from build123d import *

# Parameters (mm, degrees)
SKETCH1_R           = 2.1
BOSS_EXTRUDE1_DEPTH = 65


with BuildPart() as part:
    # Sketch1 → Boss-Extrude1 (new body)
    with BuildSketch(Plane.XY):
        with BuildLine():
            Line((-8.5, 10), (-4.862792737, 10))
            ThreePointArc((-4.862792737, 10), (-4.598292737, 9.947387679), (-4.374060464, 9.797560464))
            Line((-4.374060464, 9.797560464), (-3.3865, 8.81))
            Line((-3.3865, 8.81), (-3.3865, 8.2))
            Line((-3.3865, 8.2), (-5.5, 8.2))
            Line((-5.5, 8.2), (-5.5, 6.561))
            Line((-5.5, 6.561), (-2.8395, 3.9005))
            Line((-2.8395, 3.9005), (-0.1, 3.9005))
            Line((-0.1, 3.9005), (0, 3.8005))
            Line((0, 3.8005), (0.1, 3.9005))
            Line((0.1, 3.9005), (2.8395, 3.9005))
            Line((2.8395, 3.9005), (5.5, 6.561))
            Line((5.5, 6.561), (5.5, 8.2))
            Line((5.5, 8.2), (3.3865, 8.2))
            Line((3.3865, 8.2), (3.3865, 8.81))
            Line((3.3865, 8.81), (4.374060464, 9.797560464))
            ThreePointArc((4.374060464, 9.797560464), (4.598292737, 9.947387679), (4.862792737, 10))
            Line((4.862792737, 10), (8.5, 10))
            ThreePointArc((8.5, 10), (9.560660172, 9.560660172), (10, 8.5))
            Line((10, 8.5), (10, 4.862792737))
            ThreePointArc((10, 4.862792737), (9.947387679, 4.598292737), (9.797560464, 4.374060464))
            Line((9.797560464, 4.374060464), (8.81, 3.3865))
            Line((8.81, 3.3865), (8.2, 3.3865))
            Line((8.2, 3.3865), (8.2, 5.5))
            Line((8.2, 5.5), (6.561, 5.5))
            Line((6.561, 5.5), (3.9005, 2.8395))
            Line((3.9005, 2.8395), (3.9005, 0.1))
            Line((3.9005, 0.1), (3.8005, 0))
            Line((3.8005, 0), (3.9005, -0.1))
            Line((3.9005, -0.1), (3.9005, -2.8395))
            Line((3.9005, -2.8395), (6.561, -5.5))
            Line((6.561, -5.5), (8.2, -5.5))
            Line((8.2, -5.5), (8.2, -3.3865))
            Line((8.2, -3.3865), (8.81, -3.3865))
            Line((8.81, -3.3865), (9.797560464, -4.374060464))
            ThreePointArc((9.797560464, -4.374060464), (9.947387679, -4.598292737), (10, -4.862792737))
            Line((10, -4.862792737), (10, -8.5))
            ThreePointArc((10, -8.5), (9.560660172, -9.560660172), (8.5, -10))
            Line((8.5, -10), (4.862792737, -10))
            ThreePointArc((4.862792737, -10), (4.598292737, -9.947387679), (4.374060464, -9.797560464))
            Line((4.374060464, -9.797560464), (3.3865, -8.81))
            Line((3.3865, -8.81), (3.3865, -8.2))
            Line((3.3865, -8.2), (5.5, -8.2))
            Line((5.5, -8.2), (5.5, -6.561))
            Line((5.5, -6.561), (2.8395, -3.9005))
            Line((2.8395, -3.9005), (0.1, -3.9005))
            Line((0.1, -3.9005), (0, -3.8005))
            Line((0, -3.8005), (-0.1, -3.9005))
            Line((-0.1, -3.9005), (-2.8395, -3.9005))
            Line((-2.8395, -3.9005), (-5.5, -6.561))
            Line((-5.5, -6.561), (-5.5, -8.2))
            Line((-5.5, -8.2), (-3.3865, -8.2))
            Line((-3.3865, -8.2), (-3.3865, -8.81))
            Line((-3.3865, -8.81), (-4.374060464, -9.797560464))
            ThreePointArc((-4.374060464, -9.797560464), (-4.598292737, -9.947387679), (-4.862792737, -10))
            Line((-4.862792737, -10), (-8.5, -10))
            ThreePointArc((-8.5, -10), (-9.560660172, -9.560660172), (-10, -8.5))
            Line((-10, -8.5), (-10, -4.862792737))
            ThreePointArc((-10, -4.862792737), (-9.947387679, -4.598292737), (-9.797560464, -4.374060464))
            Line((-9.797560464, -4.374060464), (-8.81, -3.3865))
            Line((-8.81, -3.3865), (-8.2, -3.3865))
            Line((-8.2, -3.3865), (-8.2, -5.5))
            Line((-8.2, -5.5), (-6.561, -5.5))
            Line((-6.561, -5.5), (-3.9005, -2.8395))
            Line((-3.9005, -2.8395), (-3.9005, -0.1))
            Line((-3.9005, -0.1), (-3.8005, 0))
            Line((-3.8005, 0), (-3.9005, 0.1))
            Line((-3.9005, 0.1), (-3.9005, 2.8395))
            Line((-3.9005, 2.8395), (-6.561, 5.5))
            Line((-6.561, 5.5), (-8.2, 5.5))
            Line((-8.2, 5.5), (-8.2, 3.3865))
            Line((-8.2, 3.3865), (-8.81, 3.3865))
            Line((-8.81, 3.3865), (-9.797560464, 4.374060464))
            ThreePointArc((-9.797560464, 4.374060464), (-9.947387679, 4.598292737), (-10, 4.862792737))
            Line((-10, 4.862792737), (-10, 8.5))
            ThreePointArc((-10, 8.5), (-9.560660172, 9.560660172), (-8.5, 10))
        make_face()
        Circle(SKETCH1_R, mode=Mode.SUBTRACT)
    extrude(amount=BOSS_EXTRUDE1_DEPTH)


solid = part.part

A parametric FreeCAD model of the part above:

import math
import FreeCAD as App
import Part
import Sketcher
Q = App.Units.Quantity

doc = App.newDocument("Part")
body = doc.addObject("PartDesign::Body", "Body")

# Sketch on XY plane
sketch1 = doc.addObject("Sketcher::SketchObject", "Sketch")
body.addObject(sketch1)
sketch1.AttachmentSupport = (doc.XY_Plane, [""])
sketch1.MapMode = "FlatFace"
sketch1.addGeometry([
    Part.LineSegment(App.Vector(-4.862793, 10, 0), App.Vector(-8.5, 10, 0)),  # 0
    Part.ArcOfCircle(Part.Circle(App.Vector(-8.5, 8.5, 0), App.Vector(0, 0, 1), 1.5), math.radians(90), math.radians(180)),  # 1
    Part.LineSegment(App.Vector(-10, 8.5, 0), App.Vector(-10, 4.862793, 0)),  # 2
    Part.ArcOfCircle(Part.Circle(App.Vector(-9.308828, 4.862793, 0), App.Vector(0, 0, 1), 0.691172), math.radians(180), math.radians(225)),  # 3
    Part.LineSegment(App.Vector(-9.79756, 4.37406, 0), App.Vector(-8.81, 3.3865, 0)),  # 4
    Part.LineSegment(App.Vector(-8.81, 3.3865, 0), App.Vector(-8.2, 3.3865, 0)),  # 5
    Part.LineSegment(App.Vector(-8.2, 3.3865, 0), App.Vector(-8.2, 5.5, 0)),  # 6
    Part.LineSegment(App.Vector(-8.2, 5.5, 0), App.Vector(-6.561, 5.5, 0)),  # 7
    Part.LineSegment(App.Vector(-6.561, 5.5, 0), App.Vector(-3.9005, 2.8395, 0)),  # 8
    Part.LineSegment(App.Vector(-3.9005, 2.8395, 0), App.Vector(-3.9005, 0.1, 0)),  # 9
    Part.LineSegment(App.Vector(-3.9005, 0.1, 0), App.Vector(-3.8005, 0, 0)),  # 10
    Part.LineSegment(App.Vector(-3.8005, 0, 0), App.Vector(-3.9005, -0.1, 0)),  # 11
    Part.LineSegment(App.Vector(-3.9005, -0.1, 0), App.Vector(-3.9005, -2.8395, 0)),  # 12
    Part.LineSegment(App.Vector(-3.9005, -2.8395, 0), App.Vector(-6.561, -5.5, 0)),  # 13
    Part.LineSegment(App.Vector(-6.561, -5.5, 0), App.Vector(-8.2, -5.5, 0)),  # 14
    Part.LineSegment(App.Vector(-8.2, -5.5, 0), App.Vector(-8.2, -3.3865, 0)),  # 15
    Part.LineSegment(App.Vector(-8.2, -3.3865, 0), App.Vector(-8.81, -3.3865, 0)),  # 16
    Part.LineSegment(App.Vector(-8.81, -3.3865, 0), App.Vector(-9.79756, -4.37406, 0)),  # 17
    Part.ArcOfCircle(Part.Circle(App.Vector(-9.308828, -4.862793, 0), App.Vector(0, 0, 1), 0.691172), math.radians(135), math.radians(180)),  # 18
    Part.LineSegment(App.Vector(-10, -4.862793, 0), App.Vector(-10, -8.5, 0)),  # 19
    Part.ArcOfCircle(Part.Circle(App.Vector(-8.5, -8.5, 0), App.Vector(0, 0, 1), 1.5), math.radians(180), math.radians(270)),  # 20
    Part.LineSegment(App.Vector(-8.5, -10, 0), App.Vector(-4.862793, -10, 0)),  # 21
    Part.ArcOfCircle(Part.Circle(App.Vector(-4.862793, -9.308828, 0), App.Vector(0, 0, 1), 0.691172), math.radians(-90), math.radians(-45)),  # 22
    Part.LineSegment(App.Vector(-4.37406, -9.79756, 0), App.Vector(-3.3865, -8.81, 0)),  # 23
    Part.LineSegment(App.Vector(-3.3865, -8.81, 0), App.Vector(-3.3865, -8.2, 0)),  # 24
    Part.LineSegment(App.Vector(-3.3865, -8.2, 0), App.Vector(-5.5, -8.2, 0)),  # 25
    Part.LineSegment(App.Vector(-5.5, -8.2, 0), App.Vector(-5.5, -6.561, 0)),  # 26
    Part.LineSegment(App.Vector(-5.5, -6.561, 0), App.Vector(-2.8395, -3.9005, 0)),  # 27
    Part.LineSegment(App.Vector(-2.8395, -3.9005, 0), App.Vector(-0.1, -3.9005, 0)),  # 28
    Part.LineSegment(App.Vector(-0.1, -3.9005, 0), App.Vector(0, -3.8005, 0)),  # 29
    Part.LineSegment(App.Vector(0, -3.8005, 0), App.Vector(0.1, -3.9005, 0)),  # 30
    Part.LineSegment(App.Vector(0.1, -3.9005, 0), App.Vector(2.8395, -3.9005, 0)),  # 31
    Part.LineSegment(App.Vector(2.8395, -3.9005, 0), App.Vector(5.5, -6.561, 0)),  # 32
    Part.LineSegment(App.Vector(5.5, -6.561, 0), App.Vector(5.5, -8.2, 0)),  # 33
    Part.LineSegment(App.Vector(5.5, -8.2, 0), App.Vector(3.3865, -8.2, 0)),  # 34
    Part.LineSegment(App.Vector(3.3865, -8.2, 0), App.Vector(3.3865, -8.81, 0)),  # 35
    Part.LineSegment(App.Vector(3.3865, -8.81, 0), App.Vector(4.37406, -9.79756, 0)),  # 36
    Part.ArcOfCircle(Part.Circle(App.Vector(4.862793, -9.308828, 0), App.Vector(0, 0, 1), 0.691172), math.radians(-135), math.radians(-90)),  # 37
    Part.LineSegment(App.Vector(4.862793, -10, 0), App.Vector(8.5, -10, 0)),  # 38
    Part.ArcOfCircle(Part.Circle(App.Vector(8.5, -8.5, 0), App.Vector(0, 0, 1), 1.5), math.radians(-90), math.radians(0)),  # 39
    Part.LineSegment(App.Vector(10, -8.5, 0), App.Vector(10, -4.862793, 0)),  # 40
    Part.ArcOfCircle(Part.Circle(App.Vector(9.308828, -4.862793, 0), App.Vector(0, 0, 1), 0.691172), math.radians(0), math.radians(45)),  # 41
    Part.LineSegment(App.Vector(9.79756, -4.37406, 0), App.Vector(8.81, -3.3865, 0)),  # 42
    Part.LineSegment(App.Vector(8.81, -3.3865, 0), App.Vector(8.2, -3.3865, 0)),  # 43
    Part.LineSegment(App.Vector(8.2, -3.3865, 0), App.Vector(8.2, -5.5, 0)),  # 44
    Part.LineSegment(App.Vector(8.2, -5.5, 0), App.Vector(6.561, -5.5, 0)),  # 45
    Part.LineSegment(App.Vector(6.561, -5.5, 0), App.Vector(3.9005, -2.8395, 0)),  # 46
    Part.LineSegment(App.Vector(3.9005, -2.8395, 0), App.Vector(3.9005, -0.1, 0)),  # 47
    Part.LineSegment(App.Vector(3.9005, -0.1, 0), App.Vector(3.8005, 0, 0)),  # 48
    Part.LineSegment(App.Vector(3.8005, 0, 0), App.Vector(3.9005, 0.1, 0)),  # 49
    Part.LineSegment(App.Vector(3.9005, 0.1, 0), App.Vector(3.9005, 2.8395, 0)),  # 50
    Part.LineSegment(App.Vector(3.9005, 2.8395, 0), App.Vector(6.561, 5.5, 0)),  # 51
    Part.LineSegment(App.Vector(6.561, 5.5, 0), App.Vector(8.2, 5.5, 0)),  # 52
    Part.LineSegment(App.Vector(8.2, 5.5, 0), App.Vector(8.2, 3.3865, 0)),  # 53
    Part.LineSegment(App.Vector(8.2, 3.3865, 0), App.Vector(8.81, 3.3865, 0)),  # 54
    Part.LineSegment(App.Vector(8.81, 3.3865, 0), App.Vector(9.79756, 4.37406, 0)),  # 55
    Part.ArcOfCircle(Part.Circle(App.Vector(9.308828, 4.862793, 0), App.Vector(0, 0, 1), 0.691172), math.radians(-45), math.radians(0)),  # 56
    Part.LineSegment(App.Vector(10, 4.862793, 0), App.Vector(10, 8.5, 0)),  # 57
    Part.ArcOfCircle(Part.Circle(App.Vector(8.5, 8.5, 0), App.Vector(0, 0, 1), 1.5), math.radians(0), math.radians(90)),  # 58
    Part.LineSegment(App.Vector(8.5, 10, 0), App.Vector(4.862793, 10, 0)),  # 59
    Part.ArcOfCircle(Part.Circle(App.Vector(4.862793, 9.308828, 0), App.Vector(0, 0, 1), 0.691172), math.radians(90), math.radians(135)),  # 60
    Part.LineSegment(App.Vector(4.37406, 9.79756, 0), App.Vector(3.3865, 8.81, 0)),  # 61
    Part.LineSegment(App.Vector(3.3865, 8.81, 0), App.Vector(3.3865, 8.2, 0)),  # 62
    Part.LineSegment(App.Vector(3.3865, 8.2, 0), App.Vector(5.5, 8.2, 0)),  # 63
    Part.LineSegment(App.Vector(5.5, 8.2, 0), App.Vector(5.5, 6.561, 0)),  # 64
    Part.LineSegment(App.Vector(5.5, 6.561, 0), App.Vector(2.8395, 3.9005, 0)),  # 65
    Part.LineSegment(App.Vector(2.8395, 3.9005, 0), App.Vector(0.1, 3.9005, 0)),  # 66
    Part.LineSegment(App.Vector(0.1, 3.9005, 0), App.Vector(0, 3.8005, 0)),  # 67
    Part.LineSegment(App.Vector(0, 3.8005, 0), App.Vector(-0.1, 3.9005, 0)),  # 68
    Part.LineSegment(App.Vector(-0.1, 3.9005, 0), App.Vector(-2.8395, 3.9005, 0)),  # 69
    Part.LineSegment(App.Vector(-2.8395, 3.9005, 0), App.Vector(-5.5, 6.561, 0)),  # 70
    Part.LineSegment(App.Vector(-5.5, 6.561, 0), App.Vector(-5.5, 8.2, 0)),  # 71
    Part.LineSegment(App.Vector(-5.5, 8.2, 0), App.Vector(-3.3865, 8.2, 0)),  # 72
    Part.LineSegment(App.Vector(-3.3865, 8.2, 0), App.Vector(-3.3865, 8.81, 0)),  # 73
    Part.LineSegment(App.Vector(-3.3865, 8.81, 0), App.Vector(-4.37406, 9.79756, 0)),  # 74
    Part.ArcOfCircle(Part.Circle(App.Vector(-4.862793, 9.308828, 0), App.Vector(0, 0, 1), 0.691172), math.radians(45), math.radians(90)),  # 75
    Part.Circle(App.Vector(0, 0, 0), App.Vector(0, 0, 1), 2.1),  # 76
], False)
sketch1.addConstraint([
    Sketcher.Constraint("Tangent", 0, 2, 1, 1),
    Sketcher.Constraint("Tangent", 1, 2, 2, 1),
    Sketcher.Constraint("Tangent", 2, 2, 3, 1),
    Sketcher.Constraint("Tangent", 3, 2, 4, 1),
    Sketcher.Constraint("Coincident", 4, 2, 5, 1),
    Sketcher.Constraint("Coincident", 5, 2, 6, 1),
    Sketcher.Constraint("Coincident", 6, 2, 7, 1),
    Sketcher.Constraint("Coincident", 7, 2, 8, 1),
    Sketcher.Constraint("Coincident", 8, 2, 9, 1),
    Sketcher.Constraint("Coincident", 9, 2, 10, 1),
    Sketcher.Constraint("Coincident", 10, 2, 11, 1),
    Sketcher.Constraint("Coincident", 11, 2, 12, 1),
    Sketcher.Constraint("Coincident", 12, 2, 13, 1),
    Sketcher.Constraint("Coincident", 13, 2, 14, 1),
    Sketcher.Constraint("Coincident", 14, 2, 15, 1),
    Sketcher.Constraint("Coincident", 15, 2, 16, 1),
    Sketcher.Constraint("Coincident", 16, 2, 17, 1),
    Sketcher.Constraint("Tangent", 17, 2, 18, 1),
    Sketcher.Constraint("Tangent", 18, 2, 19, 1),
    Sketcher.Constraint("Tangent", 19, 2, 20, 1),
    Sketcher.Constraint("Tangent", 20, 2, 21, 1),
    Sketcher.Constraint("Tangent", 21, 2, 22, 1),
    Sketcher.Constraint("Tangent", 22, 2, 23, 1),
    Sketcher.Constraint("Coincident", 23, 2, 24, 1),
    Sketcher.Constraint("Coincident", 24, 2, 25, 1),
    Sketcher.Constraint("Coincident", 25, 2, 26, 1),
    Sketcher.Constraint("Coincident", 26, 2, 27, 1),
    Sketcher.Constraint("Coincident", 27, 2, 28, 1),
    Sketcher.Constraint("Coincident", 28, 2, 29, 1),
    Sketcher.Constraint("Coincident", 29, 2, 30, 1),
    Sketcher.Constraint("Coincident", 30, 2, 31, 1),
    Sketcher.Constraint("Coincident", 31, 2, 32, 1),
    Sketcher.Constraint("Coincident", 32, 2, 33, 1),
    Sketcher.Constraint("Coincident", 33, 2, 34, 1),
    Sketcher.Constraint("Coincident", 34, 2, 35, 1),
    Sketcher.Constraint("Coincident", 35, 2, 36, 1),
    Sketcher.Constraint("Tangent", 36, 2, 37, 1),
    Sketcher.Constraint("Tangent", 37, 2, 38, 1),
    Sketcher.Constraint("Tangent", 38, 2, 39, 1),
    Sketcher.Constraint("Tangent", 39, 2, 40, 1),
    Sketcher.Constraint("Tangent", 40, 2, 41, 1),
    Sketcher.Constraint("Tangent", 41, 2, 42, 1),
    Sketcher.Constraint("Coincident", 42, 2, 43, 1),
    Sketcher.Constraint("Coincident", 43, 2, 44, 1),
    Sketcher.Constraint("Coincident", 44, 2, 45, 1),
    Sketcher.Constraint("Coincident", 45, 2, 46, 1),
    Sketcher.Constraint("Coincident", 46, 2, 47, 1),
    Sketcher.Constraint("Coincident", 47, 2, 48, 1),
    Sketcher.Constraint("Coincident", 48, 2, 49, 1),
    Sketcher.Constraint("Coincident", 49, 2, 50, 1),
    Sketcher.Constraint("Coincident", 50, 2, 51, 1),
    Sketcher.Constraint("Coincident", 51, 2, 52, 1),
    Sketcher.Constraint("Coincident", 52, 2, 53, 1),
    Sketcher.Constraint("Coincident", 53, 2, 54, 1),
    Sketcher.Constraint("Coincident", 54, 2, 55, 1),
    Sketcher.Constraint("Tangent", 55, 2, 56, 1),
    Sketcher.Constraint("Tangent", 56, 2, 57, 1),
    Sketcher.Constraint("Tangent", 57, 2, 58, 1),
    Sketcher.Constraint("Tangent", 58, 2, 59, 1),
    Sketcher.Constraint("Tangent", 59, 2, 60, 1),
    Sketcher.Constraint("Tangent", 60, 2, 61, 1),
    Sketcher.Constraint("Coincident", 61, 2, 62, 1),
    Sketcher.Constraint("Coincident", 62, 2, 63, 1),
    Sketcher.Constraint("Coincident", 63, 2, 64, 1),
    Sketcher.Constraint("Coincident", 64, 2, 65, 1),
    Sketcher.Constraint("Coincident", 65, 2, 66, 1),
    Sketcher.Constraint("Coincident", 66, 2, 67, 1),
    Sketcher.Constraint("Coincident", 67, 2, 68, 1),
    Sketcher.Constraint("Coincident", 68, 2, 69, 1),
    Sketcher.Constraint("Coincident", 69, 2, 70, 1),
    Sketcher.Constraint("Coincident", 70, 2, 71, 1),
    Sketcher.Constraint("Coincident", 71, 2, 72, 1),
    Sketcher.Constraint("Coincident", 72, 2, 73, 1),
    Sketcher.Constraint("Coincident", 73, 2, 74, 1),
    Sketcher.Constraint("Tangent", 74, 2, 75, 1),
    Sketcher.Constraint("Tangent", 75, 2, 0, 1),
    Sketcher.Constraint("Horizontal", 0),
    Sketcher.Constraint("Vertical", 2),
    Sketcher.Constraint("Horizontal", 5),
    Sketcher.Constraint("Vertical", 6),
    Sketcher.Constraint("Horizontal", 7),
    Sketcher.Constraint("Vertical", 9),
    Sketcher.Constraint("Vertical", 12),
    Sketcher.Constraint("Horizontal", 14),
    Sketcher.Constraint("Vertical", 15),
    Sketcher.Constraint("Horizontal", 16),
    Sketcher.Constraint("Vertical", 19),
    Sketcher.Constraint("Horizontal", 21),
    Sketcher.Constraint("Vertical", 24),
    Sketcher.Constraint("Horizontal", 25),
    Sketcher.Constraint("Vertical", 26),
    Sketcher.Constraint("Horizontal", 28),
    Sketcher.Constraint("Horizontal", 31),
    Sketcher.Constraint("Vertical", 33),
    Sketcher.Constraint("Horizontal", 34),
    Sketcher.Constraint("Vertical", 35),
    Sketcher.Constraint("Horizontal", 38),
    Sketcher.Constraint("Vertical", 40),
    Sketcher.Constraint("Horizontal", 43),
    Sketcher.Constraint("Vertical", 44),
    Sketcher.Constraint("Horizontal", 45),
    Sketcher.Constraint("Vertical", 47),
    Sketcher.Constraint("Vertical", 50),
    Sketcher.Constraint("Horizontal", 52),
    Sketcher.Constraint("Vertical", 53),
    Sketcher.Constraint("Horizontal", 54),
    Sketcher.Constraint("Vertical", 57),
    Sketcher.Constraint("Horizontal", 59),
    Sketcher.Constraint("Vertical", 62),
    Sketcher.Constraint("Horizontal", 63),
    Sketcher.Constraint("Vertical", 64),
    Sketcher.Constraint("Horizontal", 66),
    Sketcher.Constraint("Horizontal", 69),
    Sketcher.Constraint("Vertical", 71),
    Sketcher.Constraint("Horizontal", 72),
    Sketcher.Constraint("Vertical", 73),
    Sketcher.Constraint("Coincident", 76, 3, -1, 1),
    Sketcher.Constraint("Equal", 3, 18),
    Sketcher.Constraint("Equal", 1, 20),
    Sketcher.Constraint("Equal", 18, 22),
    Sketcher.Constraint("Equal", 22, 37),
    Sketcher.Constraint("Equal", 20, 39),
    Sketcher.Constraint("Equal", 37, 41),
    Sketcher.Constraint("Equal", 41, 56),
    Sketcher.Constraint("Equal", 39, 58),
    Sketcher.Constraint("Equal", 56, 60),
    Sketcher.Constraint("Equal", 60, 75),
    Sketcher.Constraint("Symmetric", 1, 3, 39, 3, -1, 1),
    Sketcher.Constraint("Symmetric", 18, 3, 56, 3, -1, 1),
    Sketcher.Constraint("Symmetric", 22, 3, 60, 3, -1, 1),
    Sketcher.Constraint("Symmetric", 3, 2, 41, 2, -1, 1),
    Sketcher.Constraint("Symmetric", 5, 2, 43, 2, -1, 1),
    Sketcher.Constraint("Symmetric", 7, 2, 45, 2, -1, 1),
    Sketcher.Constraint("Symmetric", 8, 2, 46, 2, -1, 1),
    Sketcher.Constraint("Symmetric", 10, 2, 48, 2, -1, 1),
    Sketcher.Constraint("Symmetric", 11, 2, 49, 2, -1, 1),
    Sketcher.Constraint("Symmetric", 13, 2, 51, 2, -1, 1),
    Sketcher.Constraint("Symmetric", 15, 2, 53, 2, -1, 1),
    Sketcher.Constraint("Symmetric", 23, 2, 61, 2, -1, 1),
    Sketcher.Constraint("Symmetric", 25, 2, 63, 2, -1, 1),
    Sketcher.Constraint("Symmetric", 27, 2, 65, 2, -1, 1),
    Sketcher.Constraint("Symmetric", 29, 2, 67, 2, -1, 1),
    Sketcher.Constraint("Symmetric", 30, 2, 68, 2, -1, 1),
    Sketcher.Constraint("Symmetric", 32, 2, 70, 2, -1, 1),
    Sketcher.Constraint("Symmetric", 34, 2, 72, 2, -1, 1),
    Sketcher.Constraint("Symmetric", 36, 2, 74, 2, -1, 1),
    Sketcher.Constraint("Symmetric", 22, 3, 37, 3, -2),
    Sketcher.Constraint("Symmetric", 18, 3, 41, 3, -2),
    Sketcher.Constraint("Symmetric", 28, 2, 30, 2, -2),
    Sketcher.Constraint("Symmetric", 26, 2, 32, 2, -2),
    Sketcher.Constraint("Symmetric", 24, 2, 34, 2, -2),
    Sketcher.Constraint("Symmetric", 16, 2, 42, 2, -2),
    Sketcher.Constraint("Symmetric", 14, 2, 44, 2, -2),
    Sketcher.Constraint("Symmetric", 12, 2, 46, 2, -2),
    Sketcher.Constraint("PointOnObject", 10, 2, -1),
    Sketcher.Constraint("PointOnObject", 29, 2, -2),
    Sketcher.Constraint("Parallel", 4, 8),
    Sketcher.Constraint("Parallel", 8, 10),
    Sketcher.Constraint("Perpendicular", 10, 11),
    Sketcher.Constraint("Parallel", 11, 13),
    Sketcher.Constraint("Parallel", 13, 17),
    Sketcher.Constraint("Parallel", 17, 23),
    Sketcher.Constraint("Parallel", 23, 27),
    Sketcher.Constraint("Parallel", 27, 29),
    Sketcher.Constraint("Parallel", 30, 32),
    Sketcher.Constraint("Parallel", 32, 36),
    Sketcher.Constraint("Parallel", 46, 48),
    Sketcher.Constraint("Parallel", 49, 51),
    Sketcher.Constraint("Parallel", 51, 55),
    Sketcher.Constraint("Parallel", 61, 65),
    Sketcher.Constraint("Parallel", 65, 67),
    Sketcher.Constraint("Parallel", 68, 70),
    Sketcher.Constraint("Equal", 59, 2),
    Sketcher.Constraint("Equal", 72, 6),
    Sketcher.Constraint("Equal", 69, 9),
    Sketcher.Constraint("Equal", 54, 24),
    Sketcher.Constraint("Equal", 52, 26),
    Sketcher.Constraint("Equal", 17, 23),
    Sketcher.Constraint("Equal", 13, 27),
    Sketcher.Constraint("Equal", 11, 29),
    Sketcher.Constraint("Diameter", 76, Q("4.2 mm")),
    Sketcher.Constraint("Radius", 1, Q("1.5 mm")),
    Sketcher.Constraint("DistanceY", -1, 1, 0, 2, Q("10 mm")),
    Sketcher.Constraint("DistanceX", 5, 1, 5, 2, Q("0.61 mm")),
    Sketcher.Constraint("DistanceX", 5, 2, -1, 1, Q("8.2 mm")),
    Sketcher.Constraint("DistanceY", -1, 1, 6, 2, Q("5.5 mm")),
    Sketcher.Constraint("DistanceY", -1, 1, 9, 2, Q("0.1 mm")),
    Sketcher.Constraint("DistanceX", 7, 1, 7, 2, Q("1.639 mm")),
    Sketcher.Constraint("Radius", 3, Q("0.691172 mm")),
    Sketcher.Constraint("DistanceX", 25, 2, 25, 1, Q("2.1135 mm")),
    Sketcher.Constraint("DistanceX", 28, 1, 28, 2, Q("2.7395 mm")),
])
pad1 = doc.addObject("PartDesign::Pad", "Pad")
body.addObject(pad1)
pad1.Profile = sketch1
pad1.Length = 65

doc.recompute()
